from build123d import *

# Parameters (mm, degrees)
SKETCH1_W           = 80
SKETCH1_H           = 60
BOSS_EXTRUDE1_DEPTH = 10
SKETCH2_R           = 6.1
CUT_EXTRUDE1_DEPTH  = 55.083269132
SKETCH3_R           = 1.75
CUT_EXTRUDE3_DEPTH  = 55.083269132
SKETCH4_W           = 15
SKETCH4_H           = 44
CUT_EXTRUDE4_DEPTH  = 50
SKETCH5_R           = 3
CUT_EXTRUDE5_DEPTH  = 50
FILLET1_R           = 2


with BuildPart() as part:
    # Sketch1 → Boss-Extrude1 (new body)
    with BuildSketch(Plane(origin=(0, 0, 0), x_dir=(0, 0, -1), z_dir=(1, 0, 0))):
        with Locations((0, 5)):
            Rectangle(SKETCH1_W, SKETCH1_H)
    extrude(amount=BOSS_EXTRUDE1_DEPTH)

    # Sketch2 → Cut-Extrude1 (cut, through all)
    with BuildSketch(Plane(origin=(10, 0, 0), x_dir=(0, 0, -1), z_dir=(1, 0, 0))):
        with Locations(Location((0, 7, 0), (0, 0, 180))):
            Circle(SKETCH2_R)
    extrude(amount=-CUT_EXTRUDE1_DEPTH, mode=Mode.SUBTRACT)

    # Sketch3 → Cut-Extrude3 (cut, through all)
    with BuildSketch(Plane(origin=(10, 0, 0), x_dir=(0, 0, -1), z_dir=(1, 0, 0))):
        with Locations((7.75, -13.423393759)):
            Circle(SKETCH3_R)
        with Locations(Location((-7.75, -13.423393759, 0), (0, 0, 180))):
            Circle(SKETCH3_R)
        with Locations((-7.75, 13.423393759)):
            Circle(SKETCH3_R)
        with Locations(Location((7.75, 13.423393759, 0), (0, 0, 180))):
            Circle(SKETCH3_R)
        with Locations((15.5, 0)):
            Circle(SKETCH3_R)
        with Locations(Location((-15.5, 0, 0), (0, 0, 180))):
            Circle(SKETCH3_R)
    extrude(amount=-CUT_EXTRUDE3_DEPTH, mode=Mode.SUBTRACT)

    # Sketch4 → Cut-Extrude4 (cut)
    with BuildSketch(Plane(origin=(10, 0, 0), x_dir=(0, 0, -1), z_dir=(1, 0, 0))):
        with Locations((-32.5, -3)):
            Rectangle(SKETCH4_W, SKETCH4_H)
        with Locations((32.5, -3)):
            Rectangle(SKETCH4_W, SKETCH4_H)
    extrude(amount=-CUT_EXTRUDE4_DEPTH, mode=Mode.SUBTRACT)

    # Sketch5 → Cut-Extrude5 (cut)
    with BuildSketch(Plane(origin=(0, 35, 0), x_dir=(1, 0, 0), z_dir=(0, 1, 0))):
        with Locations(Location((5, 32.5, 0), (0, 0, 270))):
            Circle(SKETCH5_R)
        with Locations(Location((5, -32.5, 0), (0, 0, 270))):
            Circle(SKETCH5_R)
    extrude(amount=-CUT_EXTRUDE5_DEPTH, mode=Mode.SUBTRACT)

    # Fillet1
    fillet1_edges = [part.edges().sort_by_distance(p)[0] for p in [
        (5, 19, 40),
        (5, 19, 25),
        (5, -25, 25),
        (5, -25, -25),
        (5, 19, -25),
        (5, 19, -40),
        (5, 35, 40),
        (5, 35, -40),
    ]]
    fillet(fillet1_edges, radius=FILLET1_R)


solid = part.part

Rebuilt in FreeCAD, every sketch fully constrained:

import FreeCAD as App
import Part
import Sketcher
Q = App.Units.Quantity


def edges_at(feature, points):
    """Names of the edges that pass closest to the given points."""
    edges = feature.Shape.Edges
    near = lambda p: min(range(len(edges)), key=lambda i: edges[i].distToShape(Part.Vertex(*p))[0])
    return sorted({f"Edge{near(p) + 1}" for p in points})

doc = App.newDocument("Part")
body = doc.addObject("PartDesign::Body", "Body")

# Sketch on YZ plane
sketch1 = body.newObject("Sketcher::SketchObject", "Sketch")
sketch1.AttachmentSupport = (doc.getObject("YZ_Plane"), [""])
sketch1.MapMode = "FlatFace"
sketch1.addGeometry([
    Part.LineSegment(App.Vector(35, 40, 0), App.Vector(-25, 40, 0)),
    Part.LineSegment(App.Vector(-25, 40, 0), App.Vector(-25, -40, 0)),
    Part.LineSegment(App.Vector(-25, -40, 0), App.Vector(35, -40, 0)),
    Part.LineSegment(App.Vector(35, -40, 0), App.Vector(35, 40, 0)),
], False)
sketch1.addConstraint([
    Sketcher.Constraint("Coincident", 0, 2, 1, 1),
    Sketcher.Constraint("Coincident", 1, 2, 2, 1),
    Sketcher.Constraint("Coincident", 2, 2, 3, 1),
    Sketcher.Constraint("Coincident", 3, 2, 0, 1),
    Sketcher.Constraint("Horizontal", 0),
    Sketcher.Constraint("Vertical", 1),
    Sketcher.Constraint("Horizontal", 2),
    Sketcher.Constraint("Vertical", 3),
    Sketcher.Constraint("DistanceX", 0, 2, 0, 1, Q("60 mm")),
    Sketcher.Constraint("DistanceY", 1, 2, 1, 1, Q("80 mm")),
    Sketcher.Constraint("DistanceX", 0, 2, -1, 1, Q("25 mm")),
    Sketcher.Constraint("DistanceY", -1, 1, 0, 2, Q("40 mm")),
])
pad1 = body.newObject("PartDesign::Pad", "Pad")
pad1.Profile = sketch1
pad1.Length = 10

# Sketch on YZ plane
sketch2 = body.newObject("Sketcher::SketchObject", "Sketch001")
sketch2.AttachmentSupport = (doc.getObject("YZ_Plane"), [""])
sketch2.MapMode = "FlatFace"
sketch2.AttachmentOffset = App.Placement(App.Vector(0, 0, 10), App.Rotation())
sketch2.addGeometry(Part.Circle(App.Vector(7, 0, 0), App.Vector(0, 0, 1), 6), False)
sketch2.addConstraint([
    Sketcher.Constraint("PointOnObject", 0, 3, -1),
    Sketcher.Constraint("Diameter", 0, Q("12.2 mm")),
    Sketcher.Constraint("DistanceX", -1, 1, 0, 3, Q("7 mm")),
])
pocket1 = body.newObject("PartDesign::Pocket", "Pocket")
pocket1.Profile = sketch2
pocket1.Type = "ThroughAll"

# Sketch on YZ plane
sketch3 = body.newObject("Sketcher::SketchObject", "Sketch002")
sketch3.AttachmentSupport = (doc.getObject("YZ_Plane"), [""])
sketch3.MapMode = "FlatFace"
sketch3.AttachmentOffset = App.Placement(App.Vector(0, 0, 10), App.Rotation())
sketch3.addGeometry([
    Part.Circle(App.Vector(-13.4, -7.8, 0), App.Vector(0, 0, 1), 1.8),  # 0
    Part.Circle(App.Vector(-13.4, 7.8, 0), App.Vector(0, 0, 1), 1.8),  # 1
    Part.Circle(App.Vector(13.4, 7.8, 0), App.Vector(0, 0, 1), 1.8),  # 2
    Part.Circle(App.Vector(13.4, -7.8, 0), App.Vector(0, 0, 1), 1.8),  # 3
    Part.Circle(App.Vector(0, -15.5, 0), App.Vector(0, 0, 1), 1.8),  # 4
    Part.Circle(App.Vector(0, 15.5, 0), App.Vector(0, 0, 1), 1.8),  # 5
], False)
sketch3.addConstraint([
    Sketcher.Constraint("Equal", 0, 1),
    Sketcher.Constraint("Equal", 1, 2),
    Sketcher.Constraint("Equal", 2, 3),
    Sketcher.Constraint("Equal", 3, 4),
    Sketcher.Constraint("Equal", 4, 5),
    Sketcher.Constraint("Symmetric", 0, 3, 2, 3, -1, 1),
    Sketcher.Constraint("Symmetric", 1, 3, 3, 3, -1, 1),
    Sketcher.Constraint("Symmetric", 4, 3, 5, 3, -1, 1),
    Sketcher.Constraint("Symmetric", 1, 3, 2, 3, -2),
    Sketcher.Constraint("PointOnObject", 4, 3, -2),
    Sketcher.Constraint("Diameter", 0, Q("3.5 mm")),
    Sketcher.Constraint("DistanceY", 4, 3, 5, 3, Q("31 mm")),
    Sketcher.Constraint("DistanceY", 0, 3, 1, 3, Q("15.5 mm")),
    Sketcher.Constraint("DistanceX", 0, 3, -1, 1, Q("13.423394 mm")),
])
pocket2 = body.newObject("PartDesign::Pocket", "Pocket001")
pocket2.Profile = sketch3
pocket2.Type = "ThroughAll"

# Sketch on YZ plane
sketch4 = body.newObject("Sketcher::SketchObject", "Sketch003")
sketch4.AttachmentSupport = (doc.getObject("YZ_Plane"), [""])
sketch4.MapMode = "FlatFace"
sketch4.AttachmentOffset = App.Placement(App.Vector(0, 0, 10), App.Rotation())
sketch4.addGeometry([
    Part.LineSegment(App.Vector(19, 40, 0), App.Vector(-25, 40, 0)),  # 0
    Part.LineSegment(App.Vector(-25, 40, 0), App.Vector(-25, 25, 0)),  # 1
    Part.LineSegment(App.Vector(-25, 25, 0), App.Vector(19, 25, 0)),  # 2
    Part.LineSegment(App.Vector(19, 25, 0), App.Vector(19, 40, 0)),  # 3
    Part.LineSegment(App.Vector(19, -25, 0), App.Vector(-25, -25, 0)),  # 4
    Part.LineSegment(App.Vector(-25, -25, 0), App.Vector(-25, -40, 0)),  # 5
    Part.LineSegment(App.Vector(-25, -40, 0), App.Vector(19, -40, 0)),  # 6
    Part.LineSegment(App.Vector(19, -40, 0), App.Vector(19, -25, 0)),  # 7
], False)
sketch4.addConstraint([
    Sketcher.Constraint("Coincident", 0, 2, 1, 1),
    Sketcher.Constraint("Coincident", 1, 2, 2, 1),
    Sketcher.Constraint("Coincident", 2, 2, 3, 1),
    Sketcher.Constraint("Coincident", 3, 2, 0, 1),
    Sketcher.Constraint("Coincident", 4, 2, 5, 1),
    Sketcher.Constraint("Coincident", 5, 2, 6, 1),
    Sketcher.Constraint("Coincident", 6, 2, 7, 1),
    Sketcher.Constraint("Coincident", 7, 2, 4, 1),
    Sketcher.Constraint("Horizontal", 0),
    Sketcher.Constraint("Vertical", 1),
    Sketcher.Constraint("Horizontal", 2),
    Sketcher.Constraint("Vertical", 3),
    Sketcher.Constraint("Horizontal", 4),
    Sketcher.Constraint("Vertical", 5),
    Sketcher.Constraint("Horizontal", 6),
    Sketcher.Constraint("Vertical", 7),
    Sketcher.Constraint("Symmetric", 1, 2, 4, 2, -1),
    Sketcher.Constraint("Symmetric", 3, 2, 6, 2, -1),
    Sketcher.Constraint("DistanceX", 0, 2, 0, 1, Q("44 mm")),
    Sketcher.Constraint("DistanceY", 1, 2, 1, 1, Q("15 mm")),
    Sketcher.Constraint("DistanceX", 0, 2, -1, 1, Q("25 mm")),
    Sketcher.Constraint("DistanceY", -1, 1, 0, 2, Q("40 mm")),
])
pocket3 = body.newObject("PartDesign::Pocket", "Pocket002")
pocket3.Profile = sketch4
pocket3.Length = 50

# Sketch on XZ plane
sketch5 = body.newObject("Sketcher::SketchObject", "Sketch004")
sketch5.AttachmentSupport = (doc.getObject("XZ_Plane"), [""])
sketch5.MapMode = "FlatFace"
sketch5.AttachmentOffset = App.Placement(App.Vector(0, 0, -35), App.Rotation())
sketch5.addGeometry([
    Part.Circle(App.Vector(5, -32.5, 0), App.Vector(0, 0, 1), 3),
    Part.Circle(App.Vector(5, 32.5, 0), App.Vector(0, 0, 1), 3),
], False)
sketch5.addConstraint([
    Sketcher.Constraint("Equal", 0, 1),
    Sketcher.Constraint("Symmetric", 0, 3, 1, 3, -1),
    Sketcher.Constraint("Diameter", 0, Q("6 mm")),
    Sketcher.Constraint("DistanceX", -1, 1, 0, 3, Q("5 mm")),
    Sketcher.Constraint("DistanceY", 0, 3, 1, 3, Q("65 mm")),
])
pocket4 = body.newObject("PartDesign::Pocket", "Pocket003")
pocket4.Profile = sketch5
pocket4.Length = 50
pocket4.Reversed = True
doc.recompute()

fillet = body.newObject("PartDesign::Fillet", "Fillet")
fillet.Base = (pocket4, edges_at(pocket4, [
    (5, 19, 40),
    (5, 19, 25),
    (5, -25, 25),
    (5, -25, -25),
    (5, 19, -25),
    (5, 19, -40),
    (5, 35, 40),
    (5, 35, -40),
]))
fillet.Radius = 2

doc.recompute()
